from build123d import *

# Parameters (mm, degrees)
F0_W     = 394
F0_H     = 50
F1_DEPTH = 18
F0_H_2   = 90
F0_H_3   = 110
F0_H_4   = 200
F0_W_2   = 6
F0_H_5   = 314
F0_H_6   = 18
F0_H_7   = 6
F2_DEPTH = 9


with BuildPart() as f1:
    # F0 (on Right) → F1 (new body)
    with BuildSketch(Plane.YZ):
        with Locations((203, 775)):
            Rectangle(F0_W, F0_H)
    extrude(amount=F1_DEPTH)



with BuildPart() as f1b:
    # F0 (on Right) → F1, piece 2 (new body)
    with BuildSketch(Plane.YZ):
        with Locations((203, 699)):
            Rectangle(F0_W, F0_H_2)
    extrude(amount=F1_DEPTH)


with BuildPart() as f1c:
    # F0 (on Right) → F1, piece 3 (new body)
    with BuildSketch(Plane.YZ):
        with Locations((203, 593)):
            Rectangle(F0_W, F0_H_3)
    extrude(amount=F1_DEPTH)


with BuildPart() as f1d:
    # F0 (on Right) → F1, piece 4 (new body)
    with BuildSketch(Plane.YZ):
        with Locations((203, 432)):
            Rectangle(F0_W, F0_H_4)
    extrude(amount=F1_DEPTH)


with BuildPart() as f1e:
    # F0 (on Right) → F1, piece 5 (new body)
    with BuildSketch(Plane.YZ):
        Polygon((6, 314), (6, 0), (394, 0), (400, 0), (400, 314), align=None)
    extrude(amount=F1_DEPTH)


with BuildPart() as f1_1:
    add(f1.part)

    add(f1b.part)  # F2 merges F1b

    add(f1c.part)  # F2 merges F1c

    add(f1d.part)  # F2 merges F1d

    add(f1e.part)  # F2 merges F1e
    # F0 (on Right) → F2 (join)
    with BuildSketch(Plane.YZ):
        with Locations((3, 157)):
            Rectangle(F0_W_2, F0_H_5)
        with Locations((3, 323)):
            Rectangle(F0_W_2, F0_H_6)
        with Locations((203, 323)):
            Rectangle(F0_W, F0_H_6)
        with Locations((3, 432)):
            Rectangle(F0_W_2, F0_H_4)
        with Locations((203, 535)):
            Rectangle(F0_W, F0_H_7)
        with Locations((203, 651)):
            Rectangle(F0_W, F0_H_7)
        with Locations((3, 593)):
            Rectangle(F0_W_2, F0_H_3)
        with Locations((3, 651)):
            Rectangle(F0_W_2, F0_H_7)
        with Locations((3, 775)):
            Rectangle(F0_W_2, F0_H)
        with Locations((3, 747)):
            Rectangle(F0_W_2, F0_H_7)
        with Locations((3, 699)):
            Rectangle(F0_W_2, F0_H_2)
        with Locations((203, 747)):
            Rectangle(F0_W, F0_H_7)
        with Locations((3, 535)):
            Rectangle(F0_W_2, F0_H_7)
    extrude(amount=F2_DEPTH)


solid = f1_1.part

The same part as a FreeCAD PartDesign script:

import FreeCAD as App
import Part
import Sketcher
from FreeCAD import Vector
Q = App.Units.Quantity


def add_polygon(sketch, points):
    """Adds a closed chain of lines whose ends are joined by coincident constraints."""
    first, n = sketch.GeometryCount, len(points)
    for a, b in zip(points, points[1:] + points[:1]):
        sketch.addGeometry(Part.LineSegment(App.Vector(*a, 0), App.Vector(*b, 0)), False)
    for i in range(n):
        sketch.addConstraint(Sketcher.Constraint("Coincident", first + i, 2, first + (i + 1) % n, 1))

doc = App.newDocument("Part")
body = doc.addObject("PartDesign::Body", "Body")

# Sketch on YZ plane
sketch1 = doc.addObject("Sketcher::SketchObject", "Sketch")
body.addObject(sketch1)
sketch1.AttachmentSupport = (doc.YZ_Plane, [""])
sketch1.MapMode = "FlatFace"
add_polygon(sketch1, [(6, 800), (6, 750), (400, 750), (400, 800)])  # lines 0-3
sketch1.addConstraint([
    Sketcher.Constraint("Vertical", 0),
    Sketcher.Constraint("Horizontal", 1),
    Sketcher.Constraint("Vertical", 2),
    Sketcher.Constraint("Horizontal", 3),
    Sketcher.Constraint("DistanceX", 1, 1, 1, 2, Q("394 mm")),
    Sketcher.Constraint("DistanceY", 0, 2, 0, 1, Q("50 mm")),
    Sketcher.Constraint("DistanceX", -1, 1, 0, 2, Q("6 mm")),
    Sketcher.Constraint("DistanceY", -1, 1, 0, 2, Q("750 mm")),
])
pad1 = doc.addObject("PartDesign::Pad", "Pad")
body.addObject(pad1)
pad1.Profile = sketch1
pad1.Length = 18
body2 = doc.addObject("PartDesign::Body", "Body001")

# Sketch on YZ plane
sketch2 = doc.addObject("Sketcher::SketchObject", "Sketch001")
body2.addObject(sketch2)
sketch2.AttachmentSupport = (doc.getObject("YZ_Plane001"), [""])
sketch2.MapMode = "FlatFace"
add_polygon(sketch2, [(6, 744), (6, 654), (400, 654), (400, 744)])  # lines 0-3
sketch2.addConstraint([
    Sketcher.Constraint("Vertical", 0),
    Sketcher.Constraint("Horizontal", 1),
    Sketcher.Constraint("Vertical", 2),
    Sketcher.Constraint("Horizontal", 3),
    Sketcher.Constraint("DistanceX", 1, 1, 1, 2, Q("394 mm")),
    Sketcher.Constraint("DistanceY", 0, 2, 0, 1, Q("90 mm")),
    Sketcher.Constraint("DistanceX", -1, 1, 0, 2, Q("6 mm")),
    Sketcher.Constraint("DistanceY", -1, 1, 0, 2, Q("654 mm")),
])
pad2 = doc.addObject("PartDesign::Pad", "Pad001")
body2.addObject(pad2)
pad2.Profile = sketch2
pad2.Length = 18
body3 = doc.addObject("PartDesign::Body", "Body002")

# Sketch on YZ plane
sketch3 = doc.addObject("Sketcher::SketchObject", "Sketch002")
body3.addObject(sketch3)
sketch3.AttachmentSupport = (doc.getObject("YZ_Plane002"), [""])
sketch3.MapMode = "FlatFace"
add_polygon(sketch3, [(6, 648), (6, 538), (400, 538), (400, 648)])  # lines 0-3
sketch3.addConstraint([
    Sketcher.Constraint("Vertical", 0),
    Sketcher.Constraint("Horizontal", 1),
    Sketcher.Constraint("Vertical", 2),
    Sketcher.Constraint("Horizontal", 3),
    Sketcher.Constraint("DistanceX", 1, 1, 1, 2, Q("394 mm")),
    Sketcher.Constraint("DistanceY", 0, 2, 0, 1, Q("110 mm")),
    Sketcher.Constraint("DistanceX", -1, 1, 0, 2, Q("6 mm")),
    Sketcher.Constraint("DistanceY", -1, 1, 0, 2, Q("538 mm")),
])
pad3 = doc.addObject("PartDesign::Pad", "Pad002")
body3.addObject(pad3)
pad3.Profile = sketch3
pad3.Length = 18
body4 = doc.addObject("PartDesign::Body", "Body003")

# Sketch on YZ plane
sketch4 = doc.addObject("Sketcher::SketchObject", "Sketch003")
body4.addObject(sketch4)
sketch4.AttachmentSupport = (doc.getObject("YZ_Plane003"), [""])
sketch4.MapMode = "FlatFace"
add_polygon(sketch4, [(6, 532), (6, 332), (400, 332), (400, 532)])  # lines 0-3
sketch4.addConstraint([
    Sketcher.Constraint("Vertical", 0),
    Sketcher.Constraint("Horizontal", 1),
    Sketcher.Constraint("Vertical", 2),
    Sketcher.Constraint("Horizontal", 3),
    Sketcher.Constraint("DistanceX", 1, 1, 1, 2, Q("394 mm")),
    Sketcher.Constraint("DistanceY", 0, 2, 0, 1, Q("200 mm")),
    Sketcher.Constraint("DistanceX", -1, 1, 0, 2, Q("6 mm")),
    Sketcher.Constraint("DistanceY", -1, 1, 0, 2, Q("332 mm")),
])
pad4 = doc.addObject("PartDesign::Pad", "Pad003")
body4.addObject(pad4)
pad4.Profile = sketch4
pad4.Length = 18
body5 = doc.addObject("PartDesign::Body", "Body004")

# Sketch on YZ plane
sketch5 = doc.addObject("Sketcher::SketchObject", "Sketch004")
body5.addObject(sketch5)
sketch5.AttachmentSupport = (doc.getObject("YZ_Plane004"), [""])
sketch5.MapMode = "FlatFace"
add_polygon(sketch5, [(6, 314), (6, 0), (400, 0), (400, 314)])  # lines 0-3
sketch5.addConstraint([
    Sketcher.Constraint("Vertical", 0),
    Sketcher.Constraint("Horizontal", 1),
    Sketcher.Constraint("Vertical", 2),
    Sketcher.Constraint("Horizontal", 3),
    Sketcher.Constraint("PointOnObject", 0, 2, -1),
    Sketcher.Constraint("DistanceX", 1, 1, 1, 2, Q("394 mm")),
    Sketcher.Constraint("DistanceY", 0, 2, 0, 1, Q("314 mm")),
    Sketcher.Constraint("DistanceX", -1, 1, 0, 2, Q("6 mm")),
])
pad5 = doc.addObject("PartDesign::Pad", "Pad004")
body5.addObject(pad5)
pad5.Profile = sketch5
pad5.Length = 18
body.AllowCompound = True
doc.recompute()

boolean = doc.addObject("PartDesign::Boolean", "Boolean")
body.addObject(boolean)
boolean.Type = "Fuse"
boolean.addObjects([body2])
doc.recompute()

boolean2 = doc.addObject("PartDesign::Boolean", "Boolean001")
body.addObject(boolean2)
boolean2.Type = "Fuse"
boolean2.addObjects([body3])
doc.recompute()

boolean3 = doc.addObject("PartDesign::Boolean", "Boolean002")
body.addObject(boolean3)
boolean3.Type = "Fuse"
boolean3.addObjects([body4])
doc.recompute()

boolean4 = doc.addObject("PartDesign::Boolean", "Boolean003")
body.addObject(boolean4)
boolean4.Type = "Fuse"
boolean4.addObjects([body5])

# Sketch on YZ plane
sketch6 = doc.addObject("Sketcher::SketchObject", "Sketch005")
body.addObject(sketch6)
sketch6.AttachmentSupport = (doc.YZ_Plane, [""])
sketch6.MapMode = "FlatFace"
add_polygon(sketch6, [(0, 0), (6, 0), (6, 314), (400, 314), (400, 332), (6, 332), (6, 532), (400, 532), (400, 538), (6, 538), (6, 648), (400, 648), (400, 654), (6, 654), (6, 744), (400, 744), (400, 750), (6, 750), (6, 800), (0, 800)])  # lines 0-19
sketch6.addConstraint([
    Sketcher.Constraint("Horizontal", 0),
    Sketcher.Constraint("Vertical", 1),
    Sketcher.Constraint("Horizontal", 2),
    Sketcher.Constraint("Vertical", 3),
    Sketcher.Constraint("Horizontal", 4),
    Sketcher.Constraint("Vertical", 5),
    Sketcher.Constraint("Horizontal", 6),
    Sketcher.Constraint("Vertical", 7),
    Sketcher.Constraint("Horizontal", 8),
    Sketcher.Constraint("Vertical", 9),
    Sketcher.Constraint("Horizontal", 10),
    Sketcher.Constraint("Vertical", 11),
    Sketcher.Constraint("Horizontal", 12),
    Sketcher.Constraint("Vertical", 13),
    Sketcher.Constraint("Horizontal", 14),
    Sketcher.Constraint("Vertical", 15),
    Sketcher.Constraint("Horizontal", 16),
    Sketcher.Constraint("Vertical", 17),
    Sketcher.Constraint("Horizontal", 18),
    Sketcher.Constraint("Vertical", 19),
    Sketcher.Constraint("Coincident", 19, 2, -1, 1),
    Sketcher.Constraint("Vertical", 1, 2, 4, 2),
    Sketcher.Constraint("Vertical", 3, 2, 6, 2),
    Sketcher.Constraint("Vertical", 5, 2, 8, 2),
    Sketcher.Constraint("Vertical", 7, 2, 10, 2),
    Sketcher.Constraint("Vertical", 9, 2, 12, 2),
    Sketcher.Constraint("Vertical", 11, 2, 14, 2),
    Sketcher.Constraint("Vertical", 13, 2, 16, 2),
    Sketcher.Constraint("Equal", 18, 7),
    Sketcher.Constraint("Equal", 7, 11),
    Sketcher.Constraint("Equal", 11, 15),
    Sketcher.Constraint("DistanceX", 0, 1, 0, 2, Q("6 mm")),
    Sketcher.Constraint("DistanceX", 2, 1, 2, 2, Q("394 mm")),
    Sketcher.Constraint("DistanceY", 1, 1, 1, 2, Q("314 mm")),
    Sketcher.Constraint("DistanceY", 3, 1, 3, 2, Q("18 mm")),
    Sketcher.Constraint("DistanceY", 5, 1, 5, 2, Q("200 mm")),
    Sketcher.Constraint("DistanceY", 9, 1, 9, 2, Q("110 mm")),
    Sketcher.Constraint("DistanceY", 13, 1, 13, 2, Q("90 mm")),
    Sketcher.Constraint("DistanceY", 17, 1, 17, 2, Q("50 mm")),
])
pad6 = doc.addObject("PartDesign::Pad", "Pad005")
body.addObject(pad6)
pad6.Profile = sketch6
pad6.Length = 9

doc.recompute()
